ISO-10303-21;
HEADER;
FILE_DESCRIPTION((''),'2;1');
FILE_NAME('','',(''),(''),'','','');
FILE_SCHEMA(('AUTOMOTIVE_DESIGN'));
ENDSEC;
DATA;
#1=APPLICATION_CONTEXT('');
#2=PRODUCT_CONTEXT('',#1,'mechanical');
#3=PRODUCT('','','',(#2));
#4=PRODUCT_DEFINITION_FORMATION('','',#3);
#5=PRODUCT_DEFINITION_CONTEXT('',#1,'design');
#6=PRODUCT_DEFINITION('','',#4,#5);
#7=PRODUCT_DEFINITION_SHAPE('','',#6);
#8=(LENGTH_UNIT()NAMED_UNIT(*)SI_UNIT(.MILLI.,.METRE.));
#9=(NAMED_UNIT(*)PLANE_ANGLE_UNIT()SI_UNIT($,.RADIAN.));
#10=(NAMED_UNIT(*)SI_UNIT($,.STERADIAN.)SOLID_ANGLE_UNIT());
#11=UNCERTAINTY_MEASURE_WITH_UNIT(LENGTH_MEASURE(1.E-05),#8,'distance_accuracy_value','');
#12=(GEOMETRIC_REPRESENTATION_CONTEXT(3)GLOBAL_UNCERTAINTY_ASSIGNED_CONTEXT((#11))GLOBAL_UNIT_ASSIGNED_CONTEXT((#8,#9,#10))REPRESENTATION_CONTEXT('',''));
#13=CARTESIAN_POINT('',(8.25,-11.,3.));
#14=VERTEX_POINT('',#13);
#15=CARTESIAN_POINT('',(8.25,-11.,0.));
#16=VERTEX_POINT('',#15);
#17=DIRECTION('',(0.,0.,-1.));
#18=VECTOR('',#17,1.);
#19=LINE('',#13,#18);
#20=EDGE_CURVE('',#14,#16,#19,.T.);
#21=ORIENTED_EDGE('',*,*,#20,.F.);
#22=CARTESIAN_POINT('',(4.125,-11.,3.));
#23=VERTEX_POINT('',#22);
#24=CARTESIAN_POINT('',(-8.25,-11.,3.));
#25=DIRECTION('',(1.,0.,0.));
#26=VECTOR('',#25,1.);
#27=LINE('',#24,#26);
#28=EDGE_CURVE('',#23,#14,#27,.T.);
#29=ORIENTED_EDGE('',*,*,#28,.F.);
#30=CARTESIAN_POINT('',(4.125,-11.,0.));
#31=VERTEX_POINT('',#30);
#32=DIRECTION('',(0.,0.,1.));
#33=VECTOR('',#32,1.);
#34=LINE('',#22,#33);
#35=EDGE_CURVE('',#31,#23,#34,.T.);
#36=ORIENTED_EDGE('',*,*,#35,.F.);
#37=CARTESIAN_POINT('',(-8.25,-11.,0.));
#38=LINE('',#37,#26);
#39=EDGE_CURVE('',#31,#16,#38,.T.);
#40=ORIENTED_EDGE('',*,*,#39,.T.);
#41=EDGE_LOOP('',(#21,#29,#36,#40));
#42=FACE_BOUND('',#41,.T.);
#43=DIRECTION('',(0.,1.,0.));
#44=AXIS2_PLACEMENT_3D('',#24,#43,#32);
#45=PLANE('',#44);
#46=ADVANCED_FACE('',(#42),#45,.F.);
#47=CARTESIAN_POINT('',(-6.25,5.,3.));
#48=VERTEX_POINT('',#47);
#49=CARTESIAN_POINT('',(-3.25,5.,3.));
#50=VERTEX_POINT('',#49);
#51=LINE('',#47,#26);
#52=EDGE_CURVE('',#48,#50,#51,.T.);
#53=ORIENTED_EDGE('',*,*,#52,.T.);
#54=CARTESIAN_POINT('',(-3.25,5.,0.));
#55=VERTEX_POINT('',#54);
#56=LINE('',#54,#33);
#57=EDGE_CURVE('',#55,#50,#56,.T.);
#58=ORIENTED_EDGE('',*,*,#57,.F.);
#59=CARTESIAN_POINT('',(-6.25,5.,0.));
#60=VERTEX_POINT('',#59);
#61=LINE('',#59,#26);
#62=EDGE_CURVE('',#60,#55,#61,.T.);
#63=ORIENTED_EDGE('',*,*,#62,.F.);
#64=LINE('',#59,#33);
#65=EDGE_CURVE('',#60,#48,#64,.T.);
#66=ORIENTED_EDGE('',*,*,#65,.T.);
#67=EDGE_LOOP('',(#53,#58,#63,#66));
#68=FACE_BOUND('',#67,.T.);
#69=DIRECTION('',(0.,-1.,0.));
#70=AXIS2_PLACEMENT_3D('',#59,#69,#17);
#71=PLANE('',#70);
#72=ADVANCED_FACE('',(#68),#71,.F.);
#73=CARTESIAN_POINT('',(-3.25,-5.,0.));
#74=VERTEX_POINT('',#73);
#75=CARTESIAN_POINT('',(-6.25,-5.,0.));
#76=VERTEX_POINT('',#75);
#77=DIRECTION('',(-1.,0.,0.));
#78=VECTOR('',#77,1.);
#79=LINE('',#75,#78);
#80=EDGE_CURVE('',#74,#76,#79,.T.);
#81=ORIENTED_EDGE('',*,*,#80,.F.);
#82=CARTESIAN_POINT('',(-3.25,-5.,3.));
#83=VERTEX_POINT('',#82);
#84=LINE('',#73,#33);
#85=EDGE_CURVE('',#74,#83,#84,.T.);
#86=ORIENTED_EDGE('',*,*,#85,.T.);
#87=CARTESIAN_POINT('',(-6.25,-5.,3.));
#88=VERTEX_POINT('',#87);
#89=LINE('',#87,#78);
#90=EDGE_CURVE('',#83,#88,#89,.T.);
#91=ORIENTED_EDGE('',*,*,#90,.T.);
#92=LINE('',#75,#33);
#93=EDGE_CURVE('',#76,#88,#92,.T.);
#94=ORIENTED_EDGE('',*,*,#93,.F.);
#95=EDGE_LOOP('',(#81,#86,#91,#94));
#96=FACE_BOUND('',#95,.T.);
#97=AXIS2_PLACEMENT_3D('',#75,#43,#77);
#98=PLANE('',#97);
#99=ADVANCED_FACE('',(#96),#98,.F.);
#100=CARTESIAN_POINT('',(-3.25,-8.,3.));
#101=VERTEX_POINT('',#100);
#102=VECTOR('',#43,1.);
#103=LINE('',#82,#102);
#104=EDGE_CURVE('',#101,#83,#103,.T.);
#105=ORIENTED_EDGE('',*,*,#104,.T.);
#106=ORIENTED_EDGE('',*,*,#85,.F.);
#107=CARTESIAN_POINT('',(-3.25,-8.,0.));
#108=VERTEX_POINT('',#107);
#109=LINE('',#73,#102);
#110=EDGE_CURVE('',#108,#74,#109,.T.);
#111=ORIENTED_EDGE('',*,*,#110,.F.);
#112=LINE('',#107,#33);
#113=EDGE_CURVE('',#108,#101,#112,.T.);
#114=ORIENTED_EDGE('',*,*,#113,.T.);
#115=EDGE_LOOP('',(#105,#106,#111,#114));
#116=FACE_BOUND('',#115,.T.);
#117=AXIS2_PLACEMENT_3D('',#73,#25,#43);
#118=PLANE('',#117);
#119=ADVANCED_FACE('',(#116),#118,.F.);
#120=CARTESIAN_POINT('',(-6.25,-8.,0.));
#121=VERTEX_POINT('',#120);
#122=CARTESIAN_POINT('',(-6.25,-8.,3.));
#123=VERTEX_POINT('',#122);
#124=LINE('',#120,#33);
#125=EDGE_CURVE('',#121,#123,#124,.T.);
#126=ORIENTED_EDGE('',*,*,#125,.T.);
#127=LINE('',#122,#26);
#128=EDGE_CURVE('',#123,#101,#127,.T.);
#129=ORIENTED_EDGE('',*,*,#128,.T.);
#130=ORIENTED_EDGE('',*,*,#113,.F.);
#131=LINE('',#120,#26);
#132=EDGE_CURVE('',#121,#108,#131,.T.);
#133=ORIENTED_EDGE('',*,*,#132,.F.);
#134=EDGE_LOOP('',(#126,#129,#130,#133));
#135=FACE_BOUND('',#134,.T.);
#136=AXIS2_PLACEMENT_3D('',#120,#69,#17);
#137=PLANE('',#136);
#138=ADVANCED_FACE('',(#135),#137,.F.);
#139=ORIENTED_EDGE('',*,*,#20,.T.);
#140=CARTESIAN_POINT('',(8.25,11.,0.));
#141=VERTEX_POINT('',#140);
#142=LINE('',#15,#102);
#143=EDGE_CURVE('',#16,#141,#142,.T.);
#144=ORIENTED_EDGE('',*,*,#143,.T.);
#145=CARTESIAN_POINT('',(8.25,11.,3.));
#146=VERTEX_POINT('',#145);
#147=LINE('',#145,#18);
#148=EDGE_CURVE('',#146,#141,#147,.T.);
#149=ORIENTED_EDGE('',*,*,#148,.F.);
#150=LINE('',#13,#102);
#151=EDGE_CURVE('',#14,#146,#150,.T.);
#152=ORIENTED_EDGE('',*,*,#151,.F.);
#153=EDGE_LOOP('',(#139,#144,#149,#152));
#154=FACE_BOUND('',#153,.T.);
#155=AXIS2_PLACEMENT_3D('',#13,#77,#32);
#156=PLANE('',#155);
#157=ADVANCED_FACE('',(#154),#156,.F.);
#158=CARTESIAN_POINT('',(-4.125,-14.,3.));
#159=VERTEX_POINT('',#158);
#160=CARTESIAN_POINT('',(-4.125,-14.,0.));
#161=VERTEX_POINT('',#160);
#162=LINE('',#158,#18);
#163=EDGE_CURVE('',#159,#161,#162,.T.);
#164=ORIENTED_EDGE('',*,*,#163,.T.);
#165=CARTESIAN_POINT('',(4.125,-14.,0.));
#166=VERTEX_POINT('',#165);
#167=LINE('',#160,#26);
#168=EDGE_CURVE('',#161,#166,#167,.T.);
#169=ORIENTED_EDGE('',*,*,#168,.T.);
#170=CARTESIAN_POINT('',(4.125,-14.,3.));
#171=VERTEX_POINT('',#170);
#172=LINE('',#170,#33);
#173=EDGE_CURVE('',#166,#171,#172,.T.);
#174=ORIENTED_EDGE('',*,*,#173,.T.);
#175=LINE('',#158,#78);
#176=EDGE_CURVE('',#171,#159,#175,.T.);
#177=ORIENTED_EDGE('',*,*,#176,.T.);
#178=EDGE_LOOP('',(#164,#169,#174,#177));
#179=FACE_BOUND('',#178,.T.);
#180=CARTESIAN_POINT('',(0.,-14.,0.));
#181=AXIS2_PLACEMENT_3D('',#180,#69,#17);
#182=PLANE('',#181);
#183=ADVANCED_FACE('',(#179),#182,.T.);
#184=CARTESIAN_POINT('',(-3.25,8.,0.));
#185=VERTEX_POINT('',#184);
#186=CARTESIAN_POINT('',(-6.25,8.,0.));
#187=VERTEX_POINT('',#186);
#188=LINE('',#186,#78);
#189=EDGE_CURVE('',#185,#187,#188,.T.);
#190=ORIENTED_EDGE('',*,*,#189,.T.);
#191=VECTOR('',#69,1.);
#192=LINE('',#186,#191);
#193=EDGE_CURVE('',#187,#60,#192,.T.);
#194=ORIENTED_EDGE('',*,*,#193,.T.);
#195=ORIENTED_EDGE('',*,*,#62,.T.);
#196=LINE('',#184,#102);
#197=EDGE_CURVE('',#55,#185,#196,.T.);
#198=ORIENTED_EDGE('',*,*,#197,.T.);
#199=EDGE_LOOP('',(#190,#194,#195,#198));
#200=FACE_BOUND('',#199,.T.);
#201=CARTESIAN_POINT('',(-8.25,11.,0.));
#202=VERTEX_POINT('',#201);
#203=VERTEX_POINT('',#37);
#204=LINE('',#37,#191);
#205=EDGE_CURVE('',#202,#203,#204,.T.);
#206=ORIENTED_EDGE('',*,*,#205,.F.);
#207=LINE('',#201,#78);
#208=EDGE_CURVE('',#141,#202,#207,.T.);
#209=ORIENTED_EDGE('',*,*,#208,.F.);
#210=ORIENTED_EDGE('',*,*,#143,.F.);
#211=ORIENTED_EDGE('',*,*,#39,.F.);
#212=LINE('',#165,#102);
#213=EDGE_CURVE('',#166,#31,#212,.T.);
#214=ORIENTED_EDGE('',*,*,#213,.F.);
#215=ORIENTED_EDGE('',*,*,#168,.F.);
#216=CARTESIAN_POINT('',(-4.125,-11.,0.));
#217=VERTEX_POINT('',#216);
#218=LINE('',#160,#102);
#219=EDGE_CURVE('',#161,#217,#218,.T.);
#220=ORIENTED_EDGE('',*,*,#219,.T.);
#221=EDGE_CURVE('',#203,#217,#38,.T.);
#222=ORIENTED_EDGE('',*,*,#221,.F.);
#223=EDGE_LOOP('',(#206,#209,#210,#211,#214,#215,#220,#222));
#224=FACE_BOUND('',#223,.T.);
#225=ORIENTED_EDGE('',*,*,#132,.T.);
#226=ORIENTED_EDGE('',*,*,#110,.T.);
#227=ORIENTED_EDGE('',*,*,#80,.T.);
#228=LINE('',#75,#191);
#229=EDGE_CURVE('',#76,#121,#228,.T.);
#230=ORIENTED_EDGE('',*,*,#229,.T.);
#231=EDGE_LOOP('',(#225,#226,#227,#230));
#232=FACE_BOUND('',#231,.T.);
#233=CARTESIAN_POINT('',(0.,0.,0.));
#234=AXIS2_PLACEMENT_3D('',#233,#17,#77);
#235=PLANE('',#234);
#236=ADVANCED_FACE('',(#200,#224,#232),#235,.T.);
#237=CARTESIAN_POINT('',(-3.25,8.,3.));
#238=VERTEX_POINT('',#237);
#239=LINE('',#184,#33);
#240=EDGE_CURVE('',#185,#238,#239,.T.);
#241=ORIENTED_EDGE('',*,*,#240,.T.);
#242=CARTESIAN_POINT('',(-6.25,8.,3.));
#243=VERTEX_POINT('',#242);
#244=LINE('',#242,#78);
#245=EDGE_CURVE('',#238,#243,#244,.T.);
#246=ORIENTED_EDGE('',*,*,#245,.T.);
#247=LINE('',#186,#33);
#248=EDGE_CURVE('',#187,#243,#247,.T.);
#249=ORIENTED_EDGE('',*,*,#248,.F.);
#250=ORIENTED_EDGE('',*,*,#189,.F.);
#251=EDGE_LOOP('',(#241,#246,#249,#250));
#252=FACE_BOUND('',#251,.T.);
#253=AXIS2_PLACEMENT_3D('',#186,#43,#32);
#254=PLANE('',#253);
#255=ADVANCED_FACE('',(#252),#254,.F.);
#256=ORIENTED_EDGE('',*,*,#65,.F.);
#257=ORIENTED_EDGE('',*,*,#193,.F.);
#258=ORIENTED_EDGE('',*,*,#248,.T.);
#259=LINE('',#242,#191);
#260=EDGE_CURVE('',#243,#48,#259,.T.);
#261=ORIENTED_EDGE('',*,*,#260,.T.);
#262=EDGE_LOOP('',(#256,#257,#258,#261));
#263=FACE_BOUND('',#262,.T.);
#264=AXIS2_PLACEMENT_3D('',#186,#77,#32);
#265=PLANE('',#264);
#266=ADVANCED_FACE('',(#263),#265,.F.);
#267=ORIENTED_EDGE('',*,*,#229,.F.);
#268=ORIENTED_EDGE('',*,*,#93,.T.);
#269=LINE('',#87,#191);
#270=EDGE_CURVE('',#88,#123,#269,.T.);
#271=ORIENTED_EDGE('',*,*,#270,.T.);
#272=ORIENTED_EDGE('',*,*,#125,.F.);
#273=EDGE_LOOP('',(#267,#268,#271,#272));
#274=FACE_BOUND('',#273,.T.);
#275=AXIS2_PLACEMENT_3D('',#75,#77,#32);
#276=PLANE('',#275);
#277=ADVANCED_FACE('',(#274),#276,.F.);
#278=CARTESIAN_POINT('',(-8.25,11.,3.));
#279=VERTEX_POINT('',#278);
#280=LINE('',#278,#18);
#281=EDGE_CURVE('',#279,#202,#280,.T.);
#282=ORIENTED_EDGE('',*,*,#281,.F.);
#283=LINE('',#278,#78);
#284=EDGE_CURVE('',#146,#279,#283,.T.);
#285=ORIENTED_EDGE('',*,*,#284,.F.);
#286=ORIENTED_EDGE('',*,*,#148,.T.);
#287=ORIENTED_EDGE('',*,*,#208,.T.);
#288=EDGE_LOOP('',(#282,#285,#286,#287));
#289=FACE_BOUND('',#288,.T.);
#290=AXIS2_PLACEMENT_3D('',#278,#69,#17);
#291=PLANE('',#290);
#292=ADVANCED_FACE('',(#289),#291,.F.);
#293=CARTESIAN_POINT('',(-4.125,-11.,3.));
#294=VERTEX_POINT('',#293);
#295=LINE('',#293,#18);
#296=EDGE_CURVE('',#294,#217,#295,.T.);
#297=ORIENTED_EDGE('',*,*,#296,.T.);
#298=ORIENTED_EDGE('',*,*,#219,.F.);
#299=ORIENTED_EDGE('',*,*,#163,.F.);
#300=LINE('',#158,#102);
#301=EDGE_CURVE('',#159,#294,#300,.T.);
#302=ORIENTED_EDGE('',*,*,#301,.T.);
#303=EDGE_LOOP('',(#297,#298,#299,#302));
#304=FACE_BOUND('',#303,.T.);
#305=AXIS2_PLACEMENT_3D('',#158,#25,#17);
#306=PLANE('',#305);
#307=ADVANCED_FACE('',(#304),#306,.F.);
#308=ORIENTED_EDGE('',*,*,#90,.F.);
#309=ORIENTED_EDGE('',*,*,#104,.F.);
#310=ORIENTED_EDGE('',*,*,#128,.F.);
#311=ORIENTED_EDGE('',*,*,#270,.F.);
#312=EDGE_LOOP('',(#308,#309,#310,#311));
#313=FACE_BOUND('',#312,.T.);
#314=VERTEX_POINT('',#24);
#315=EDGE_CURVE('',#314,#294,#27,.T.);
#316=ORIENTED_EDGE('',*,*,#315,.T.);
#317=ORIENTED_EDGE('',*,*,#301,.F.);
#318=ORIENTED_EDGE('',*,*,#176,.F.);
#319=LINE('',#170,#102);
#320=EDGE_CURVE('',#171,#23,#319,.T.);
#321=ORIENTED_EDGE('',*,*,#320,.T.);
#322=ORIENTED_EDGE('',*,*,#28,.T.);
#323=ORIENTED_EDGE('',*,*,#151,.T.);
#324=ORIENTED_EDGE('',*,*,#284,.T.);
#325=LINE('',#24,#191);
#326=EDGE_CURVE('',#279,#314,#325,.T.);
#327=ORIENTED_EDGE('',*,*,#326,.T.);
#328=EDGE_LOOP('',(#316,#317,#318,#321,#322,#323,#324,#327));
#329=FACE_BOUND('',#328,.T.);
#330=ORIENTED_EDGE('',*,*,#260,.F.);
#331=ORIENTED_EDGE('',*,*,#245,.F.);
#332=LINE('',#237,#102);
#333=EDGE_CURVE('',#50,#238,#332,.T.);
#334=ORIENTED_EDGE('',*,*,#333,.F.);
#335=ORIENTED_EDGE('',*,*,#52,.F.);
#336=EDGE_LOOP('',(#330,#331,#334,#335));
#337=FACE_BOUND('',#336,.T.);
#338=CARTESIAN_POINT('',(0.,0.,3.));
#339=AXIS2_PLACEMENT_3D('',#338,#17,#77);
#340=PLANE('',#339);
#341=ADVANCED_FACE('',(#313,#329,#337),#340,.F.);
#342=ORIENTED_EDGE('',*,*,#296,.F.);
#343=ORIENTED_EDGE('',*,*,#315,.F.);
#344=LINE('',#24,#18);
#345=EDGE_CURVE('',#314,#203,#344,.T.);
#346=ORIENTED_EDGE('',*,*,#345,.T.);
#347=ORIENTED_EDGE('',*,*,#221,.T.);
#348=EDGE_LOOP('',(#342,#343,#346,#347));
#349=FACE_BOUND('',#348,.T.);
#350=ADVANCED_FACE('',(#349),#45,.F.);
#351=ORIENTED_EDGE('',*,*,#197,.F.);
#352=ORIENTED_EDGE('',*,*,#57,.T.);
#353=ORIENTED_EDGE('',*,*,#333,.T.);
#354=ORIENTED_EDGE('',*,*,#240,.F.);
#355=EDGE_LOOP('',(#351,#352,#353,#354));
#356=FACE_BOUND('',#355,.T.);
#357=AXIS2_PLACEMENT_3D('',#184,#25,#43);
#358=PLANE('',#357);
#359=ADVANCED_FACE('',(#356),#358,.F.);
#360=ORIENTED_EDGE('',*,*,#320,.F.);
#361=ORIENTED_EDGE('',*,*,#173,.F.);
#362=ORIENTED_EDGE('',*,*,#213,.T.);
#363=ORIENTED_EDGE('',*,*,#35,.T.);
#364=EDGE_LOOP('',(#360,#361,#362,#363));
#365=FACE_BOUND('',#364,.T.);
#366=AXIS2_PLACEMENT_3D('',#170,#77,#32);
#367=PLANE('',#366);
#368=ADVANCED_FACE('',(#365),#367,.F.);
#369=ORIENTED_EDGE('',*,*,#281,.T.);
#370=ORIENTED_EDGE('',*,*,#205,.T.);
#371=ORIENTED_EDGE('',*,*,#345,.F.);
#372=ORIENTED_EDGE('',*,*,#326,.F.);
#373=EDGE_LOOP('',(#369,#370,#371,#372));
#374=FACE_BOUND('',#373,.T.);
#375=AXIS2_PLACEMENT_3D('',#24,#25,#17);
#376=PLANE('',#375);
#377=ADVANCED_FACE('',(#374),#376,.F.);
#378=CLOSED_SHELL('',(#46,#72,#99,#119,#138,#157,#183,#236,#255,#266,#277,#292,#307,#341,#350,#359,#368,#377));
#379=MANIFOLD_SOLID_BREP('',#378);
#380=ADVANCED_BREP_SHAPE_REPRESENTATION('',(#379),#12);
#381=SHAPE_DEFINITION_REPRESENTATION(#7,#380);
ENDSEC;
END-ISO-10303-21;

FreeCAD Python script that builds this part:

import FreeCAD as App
import Part
import Sketcher

V = App.Vector

doc = App.newDocument("Part")
body = doc.addObject("PartDesign::Body", "Body")

# Sketch on XY plane
sketch1 = doc.addObject("Sketcher::SketchObject", "Sketch")
body.addObject(sketch1)
sketch1.AttachmentSupport = (doc.XY_Plane, [""])
sketch1.MapMode = "FlatFace"
sketch1.addGeometry([
    Part.LineSegment(V(-8.25, 11, 0), V(-8.25, -11, 0)),
    Part.LineSegment(V(-8.25, -11, 0), V(8.25, -11, 0)),
    Part.LineSegment(V(8.25, -11, 0), V(8.25, 11, 0)),
    Part.LineSegment(V(8.25, 11, 0), V(-8.25, 11, 0)),
], False)
sketch1.addConstraint([
    Sketcher.Constraint("Coincident", 0, 2, 1, 1),
    Sketcher.Constraint("Coincident", 1, 2, 2, 1),
    Sketcher.Constraint("Coincident", 2, 2, 3, 1),
    Sketcher.Constraint("Coincident", 3, 2, 0, 1),
    Sketcher.Constraint("Vertical", 0),
    Sketcher.Constraint("Horizontal", 1),
    Sketcher.Constraint("Vertical", 2),
    Sketcher.Constraint("Horizontal", 3),
    Sketcher.Constraint("Symmetric", 0, 2, 2, 2, -1, 1),
    Sketcher.Constraint("DistanceY", 0, 2, 0, 1, 22.0),
    Sketcher.Constraint("DistanceX", 1, 1, 1, 2, 16.5),
])
pad1 = doc.addObject("PartDesign::Pad", "Pad")
body.addObject(pad1)
pad1.Profile = sketch1
pad1.Length = 3

# Sketch on XZ plane
sketch2 = doc.addObject("Sketcher::SketchObject", "Sketch001")
body.addObject(sketch2)
sketch2.AttachmentSupport = (doc.XZ_Plane, [""])
sketch2.MapMode = "FlatFace"
sketch2.AttachmentOffset = App.Placement(V(0, 0, 11), App.Rotation())
sketch2.addGeometry([
    Part.LineSegment(V(4.125, 0, 0), V(4.125, 3, 0)),
    Part.LineSegment(V(4.125, 3, 0), V(-4.125, 3, 0)),
    Part.LineSegment(V(-4.125, 3, 0), V(-4.125, 0, 0)),
    Part.LineSegment(V(-4.125, 0, 0), V(4.125, 0, 0)),
], False)
sketch2.addConstraint([
    Sketcher.Constraint("Coincident", 0, 2, 1, 1),
    Sketcher.Constraint("Coincident", 1, 2, 2, 1),
    Sketcher.Constraint("Coincident", 2, 2, 3, 1),
    Sketcher.Constraint("Coincident", 3, 2, 0, 1),
    Sketcher.Constraint("Vertical", 0),
    Sketcher.Constraint("Horizontal", 1),
    Sketcher.Constraint("Vertical", 2),
    Sketcher.Constraint("Horizontal", 3),
    Sketcher.Constraint("Symmetric", 2, 2, 3, 2, -1, 1),
    Sketcher.Constraint("DistanceY", 0, 1, 0, 2, 3.0),
    Sketcher.Constraint("DistanceX", 1, 2, 1, 1, 8.25),
])
pad2 = doc.addObject("PartDesign::Pad", "Pad001")
body.addObject(pad2)
pad2.Profile = sketch2
pad2.Length = 3

# Sketch on XY plane
sketch3 = doc.addObject("Sketcher::SketchObject", "Sketch002")
body.addObject(sketch3)
sketch3.AttachmentSupport = (doc.XY_Plane, [""])
sketch3.MapMode = "FlatFace"
sketch3.AttachmentOffset = App.Placement(V(0, 0, 3), App.Rotation())
sketch3.addGeometry([
    Part.LineSegment(V(-6.25, -5, 0), V(-6.25, -8, 0)),  # 0
    Part.LineSegment(V(-6.25, -8, 0), V(-3.25, -8, 0)),  # 1
    Part.LineSegment(V(-3.25, -8, 0), V(-3.25, -5, 0)),  # 2
    Part.LineSegment(V(-3.25, -5, 0), V(-6.25, -5, 0)),  # 3
    Part.LineSegment(V(-6.25, 8, 0), V(-6.25, 5, 0)),  # 4
    Part.LineSegment(V(-6.25, 5, 0), V(-3.25, 5, 0)),  # 5
    Part.LineSegment(V(-3.25, 5, 0), V(-3.25, 8, 0)),  # 6
    Part.LineSegment(V(-3.25, 8, 0), V(-6.25, 8, 0)),  # 7
], False)
sketch3.addConstraint([
    Sketcher.Constraint("Coincident", 0, 2, 1, 1),
    Sketcher.Constraint("Coincident", 1, 2, 2, 1),
    Sketcher.Constraint("Coincident", 2, 2, 3, 1),
    Sketcher.Constraint("Coincident", 3, 2, 0, 1),
    Sketcher.Constraint("Coincident", 4, 2, 5, 1),
    Sketcher.Constraint("Coincident", 5, 2, 6, 1),
    Sketcher.Constraint("Coincident", 6, 2, 7, 1),
    Sketcher.Constraint("Coincident", 7, 2, 4, 1),
    Sketcher.Constraint("Vertical", 0),
    Sketcher.Constraint("Horizontal", 1),
    Sketcher.Constraint("Vertical", 2),
    Sketcher.Constraint("Horizontal", 3),
    Sketcher.Constraint("Vertical", 4),
    Sketcher.Constraint("Horizontal", 5),
    Sketcher.Constraint("Vertical", 6),
    Sketcher.Constraint("Horizontal", 7),
    Sketcher.Constraint("Symmetric", 3, 2, 4, 2, -1),
    Sketcher.Constraint("Symmetric", 1, 2, 6, 2, -1),
    Sketcher.Constraint("Equal", 7, 0),
    Sketcher.Constraint("DistanceX", 1, 1, 1, 2, 3.0),
    Sketcher.Constraint("DistanceY", 0, 2, -1, 1, 8.0),
    Sketcher.Constraint("DistanceX", 0, 2, -1, 1, 6.25),
])
pocket1 = doc.addObject("PartDesign::Pocket", "Pocket")
body.addObject(pocket1)
pocket1.Profile = sketch3
pocket1.Length = 3

doc.recompute()
